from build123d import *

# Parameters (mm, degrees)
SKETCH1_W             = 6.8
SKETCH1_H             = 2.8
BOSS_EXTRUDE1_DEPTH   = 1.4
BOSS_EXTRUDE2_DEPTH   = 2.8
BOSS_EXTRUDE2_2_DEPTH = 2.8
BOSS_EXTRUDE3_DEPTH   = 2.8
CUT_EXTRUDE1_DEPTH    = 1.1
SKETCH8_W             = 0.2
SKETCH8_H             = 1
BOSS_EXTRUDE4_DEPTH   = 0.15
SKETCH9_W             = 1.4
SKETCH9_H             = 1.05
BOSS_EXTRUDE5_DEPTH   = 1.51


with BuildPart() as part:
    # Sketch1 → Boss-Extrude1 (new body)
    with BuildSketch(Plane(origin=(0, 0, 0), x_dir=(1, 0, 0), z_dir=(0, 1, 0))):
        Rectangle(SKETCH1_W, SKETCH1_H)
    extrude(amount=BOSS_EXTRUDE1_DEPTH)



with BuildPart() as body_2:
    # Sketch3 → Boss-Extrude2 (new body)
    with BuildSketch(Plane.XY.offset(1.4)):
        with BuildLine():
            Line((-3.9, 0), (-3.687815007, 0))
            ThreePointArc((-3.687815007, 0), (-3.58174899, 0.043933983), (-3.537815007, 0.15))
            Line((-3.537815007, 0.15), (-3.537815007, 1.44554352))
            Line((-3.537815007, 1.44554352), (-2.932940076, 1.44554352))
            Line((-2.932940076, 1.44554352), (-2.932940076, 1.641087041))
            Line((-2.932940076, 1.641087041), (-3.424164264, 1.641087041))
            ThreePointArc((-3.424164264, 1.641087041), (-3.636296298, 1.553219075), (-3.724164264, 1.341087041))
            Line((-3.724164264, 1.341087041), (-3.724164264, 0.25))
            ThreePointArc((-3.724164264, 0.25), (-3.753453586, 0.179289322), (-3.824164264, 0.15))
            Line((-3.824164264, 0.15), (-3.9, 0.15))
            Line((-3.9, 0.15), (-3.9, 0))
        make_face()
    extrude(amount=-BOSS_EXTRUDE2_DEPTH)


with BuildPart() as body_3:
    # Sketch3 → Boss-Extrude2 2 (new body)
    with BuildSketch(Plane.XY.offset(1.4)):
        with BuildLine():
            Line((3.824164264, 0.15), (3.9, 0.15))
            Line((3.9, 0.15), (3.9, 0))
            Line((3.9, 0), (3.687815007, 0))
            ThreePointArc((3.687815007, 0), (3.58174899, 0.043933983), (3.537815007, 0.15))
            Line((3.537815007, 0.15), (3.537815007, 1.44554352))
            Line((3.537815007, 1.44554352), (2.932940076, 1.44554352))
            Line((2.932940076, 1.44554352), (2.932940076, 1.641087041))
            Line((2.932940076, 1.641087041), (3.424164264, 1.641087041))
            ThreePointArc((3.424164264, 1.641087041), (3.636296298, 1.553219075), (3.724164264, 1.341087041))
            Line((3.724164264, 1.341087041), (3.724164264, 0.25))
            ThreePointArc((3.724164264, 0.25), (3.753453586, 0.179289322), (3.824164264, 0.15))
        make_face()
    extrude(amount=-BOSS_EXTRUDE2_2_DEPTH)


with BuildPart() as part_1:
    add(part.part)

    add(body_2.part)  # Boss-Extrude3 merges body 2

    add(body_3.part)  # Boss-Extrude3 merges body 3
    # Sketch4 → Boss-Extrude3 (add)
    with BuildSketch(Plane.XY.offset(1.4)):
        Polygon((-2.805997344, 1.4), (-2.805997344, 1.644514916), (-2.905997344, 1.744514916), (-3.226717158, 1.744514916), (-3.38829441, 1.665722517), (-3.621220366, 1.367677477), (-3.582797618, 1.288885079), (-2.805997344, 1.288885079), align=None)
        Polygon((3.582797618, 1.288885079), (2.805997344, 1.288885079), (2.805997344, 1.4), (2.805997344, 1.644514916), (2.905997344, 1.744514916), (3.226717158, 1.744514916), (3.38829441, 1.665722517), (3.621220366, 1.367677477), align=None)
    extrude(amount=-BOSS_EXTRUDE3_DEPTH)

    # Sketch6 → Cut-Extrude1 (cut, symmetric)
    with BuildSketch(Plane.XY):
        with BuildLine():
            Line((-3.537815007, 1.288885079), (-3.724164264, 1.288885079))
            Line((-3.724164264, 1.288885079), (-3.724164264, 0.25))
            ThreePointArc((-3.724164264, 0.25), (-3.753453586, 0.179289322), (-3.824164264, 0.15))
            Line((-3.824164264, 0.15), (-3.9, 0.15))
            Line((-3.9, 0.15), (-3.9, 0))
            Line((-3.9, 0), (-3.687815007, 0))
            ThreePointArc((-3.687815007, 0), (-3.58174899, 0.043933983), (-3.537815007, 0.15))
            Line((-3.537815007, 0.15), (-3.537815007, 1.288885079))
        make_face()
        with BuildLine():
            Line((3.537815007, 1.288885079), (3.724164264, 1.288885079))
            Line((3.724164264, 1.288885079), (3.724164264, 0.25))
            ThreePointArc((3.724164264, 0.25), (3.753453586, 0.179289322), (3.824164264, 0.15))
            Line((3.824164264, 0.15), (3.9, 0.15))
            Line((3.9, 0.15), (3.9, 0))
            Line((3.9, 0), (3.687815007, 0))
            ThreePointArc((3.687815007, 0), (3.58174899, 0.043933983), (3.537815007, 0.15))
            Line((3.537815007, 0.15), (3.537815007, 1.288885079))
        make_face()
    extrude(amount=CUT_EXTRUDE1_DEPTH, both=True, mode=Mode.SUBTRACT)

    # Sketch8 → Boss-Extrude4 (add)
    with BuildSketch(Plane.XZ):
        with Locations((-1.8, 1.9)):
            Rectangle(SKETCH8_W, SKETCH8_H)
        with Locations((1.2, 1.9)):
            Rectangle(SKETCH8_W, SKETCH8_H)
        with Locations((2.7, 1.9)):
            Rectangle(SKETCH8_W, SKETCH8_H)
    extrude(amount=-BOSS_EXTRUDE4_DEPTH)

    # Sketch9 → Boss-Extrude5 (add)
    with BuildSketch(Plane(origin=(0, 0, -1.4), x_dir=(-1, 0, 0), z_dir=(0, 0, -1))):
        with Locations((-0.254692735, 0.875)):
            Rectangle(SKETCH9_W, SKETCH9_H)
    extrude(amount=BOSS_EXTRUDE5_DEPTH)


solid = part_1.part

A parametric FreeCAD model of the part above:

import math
import FreeCAD as App
import Part
import Sketcher


def add_polygon(sketch, points):
    """Adds a closed chain of lines whose ends are joined by coincident constraints."""
    first, n = sketch.GeometryCount, len(points)
    for a, b in zip(points, points[1:] + points[:1]):
        sketch.addGeometry(Part.LineSegment(App.Vector(*a, 0), App.Vector(*b, 0)), False)
    for i in range(n):
        sketch.addConstraint(Sketcher.Constraint("Coincident", first + i, 2, first + (i + 1) % n, 1))

doc = App.newDocument("Part")
body = doc.addObject("PartDesign::Body", "Body")

# Sketch on XZ plane
sketch1 = body.newObject("Sketcher::SketchObject", "Sketch")
sketch1.AttachmentSupport = (doc.getObject("XZ_Plane"), [""])
sketch1.MapMode = "FlatFace"
add_polygon(sketch1, [(-3.4, -1.4), (-3.4, 1.4), (3.4, 1.4), (3.4, -1.4)])  # lines 0-3
sketch1.addConstraint([
    Sketcher.Constraint("Vertical", 0),
    Sketcher.Constraint("Horizontal", 1),
    Sketcher.Constraint("Vertical", 2),
    Sketcher.Constraint("Horizontal", 3),
    Sketcher.Constraint("Symmetric", 0, 2, 2, 2, -1, 1),
    Sketcher.Constraint("DistanceX", 1, 1, 1, 2, 6.8),
    Sketcher.Constraint("DistanceY", 0, 1, 0, 2, 2.8),
])
pad1 = body.newObject("PartDesign::Pad", "Pad")
pad1.Profile = sketch1
pad1.Length = 1.4
pad1.Reversed = True
body2 = doc.addObject("PartDesign::Body", "Body001")

# Sketch on XY plane
sketch2 = body2.newObject("Sketcher::SketchObject", "Sketch001")
sketch2.AttachmentSupport = (doc.getObject("XY_Plane001"), [""])
sketch2.MapMode = "FlatFace"
sketch2.AttachmentOffset = App.Placement(App.Vector(0, 0, 1.4), App.Rotation())
sketch2.addGeometry([
    Part.LineSegment(App.Vector(-3.9, 0, 0), App.Vector(-3.69, 0, 0)),  # 0
    Part.ArcOfCircle(Part.Circle(App.Vector(-3.69, 0.15, 0), App.Vector(0, 0, 1), 0.15), math.radians(-90), math.radians(0)),  # 1
    Part.LineSegment(App.Vector(-3.54, 0.15, 0), App.Vector(-3.54, 1.45, 0)),  # 2
    Part.LineSegment(App.Vector(-3.54, 1.45, 0), App.Vector(-2.93, 1.45, 0)),  # 3
    Part.LineSegment(App.Vector(-2.93, 1.45, 0), App.Vector(-2.93, 1.64, 0)),  # 4
    Part.LineSegment(App.Vector(-2.93, 1.64, 0), App.Vector(-3.42, 1.64, 0)),  # 5
    Part.ArcOfCircle(Part.Circle(App.Vector(-3.42, 1.34, 0), App.Vector(0, 0, 1), 0.3), math.radians(90), math.radians(180)),  # 6
    Part.LineSegment(App.Vector(-3.72, 1.34, 0), App.Vector(-3.72, 0.25, 0)),  # 7
    Part.ArcOfCircle(Part.Circle(App.Vector(-3.82, 0.25, 0), App.Vector(0, 0, 1), 0.1), math.radians(-90), math.radians(0)),  # 8
    Part.LineSegment(App.Vector(-3.82, 0.15, 0), App.Vector(-3.9, 0.15, 0)),  # 9
    Part.LineSegment(App.Vector(-3.9, 0.15, 0), App.Vector(-3.9, 0, 0)),  # 10
], False)
sketch2.addConstraint([
    Sketcher.Constraint("Tangent", 0, 2, 1, 1),
    Sketcher.Constraint("Tangent", 1, 2, 2, 1),
    Sketcher.Constraint("Coincident", 2, 2, 3, 1),
    Sketcher.Constraint("Coincident", 3, 2, 4, 1),
    Sketcher.Constraint("Coincident", 4, 2, 5, 1),
    Sketcher.Constraint("Tangent", 5, 2, 6, 1),
    Sketcher.Constraint("Tangent", 6, 2, 7, 1),
    Sketcher.Constraint("Tangent", 7, 2, 8, 2),
    Sketcher.Constraint("Tangent", 8, 1, 9, 1),
    Sketcher.Constraint("Coincident", 9, 2, 10, 1),
    Sketcher.Constraint("Coincident", 10, 2, 0, 1),
    Sketcher.Constraint("Horizontal", 0),
    Sketcher.Constraint("Vertical", 2),
    Sketcher.Constraint("Horizontal", 3),
    Sketcher.Constraint("Vertical", 4),
    Sketcher.Constraint("Horizontal", 5),
    Sketcher.Constraint("Vertical", 7),
    Sketcher.Constraint("Horizontal", 9),
    Sketcher.Constraint("Vertical", 10),
    Sketcher.Constraint("PointOnObject", 0, 2, -1),
    Sketcher.Constraint("Horizontal", 1, 2, 8, 1),
    Sketcher.Constraint("Radius", 6, 0.3),
    Sketcher.Constraint("Radius", 8, 0.1),
    Sketcher.Constraint("Radius", 1, 0.15),
    Sketcher.Constraint("DistanceX", 9, 2, -1, 1, 3.9),
    Sketcher.Constraint("DistanceX", 0, 1, 0, 2, 0.212185),
    Sketcher.Constraint("DistanceX", 3, 1, 3, 2, 0.604875),
    Sketcher.Constraint("DistanceX", 5, 2, 5, 1, 0.491224),
    Sketcher.Constraint("DistanceY", 2, 1, 2, 2, 1.295544),
    Sketcher.Constraint("DistanceY", 4, 1, 4, 2, 0.195544),
])
pad2 = body2.newObject("PartDesign::Pad", "Pad001")
pad2.Profile = sketch2
pad2.Length = 2.8
pad2.Reversed = True
body3 = doc.addObject("PartDesign::Body", "Body002")

# Sketch on XY plane
sketch3 = body3.newObject("Sketcher::SketchObject", "Sketch002")
sketch3.AttachmentSupport = (doc.getObject("XY_Plane002"), [""])
sketch3.MapMode = "FlatFace"
sketch3.AttachmentOffset = App.Placement(App.Vector(0, 0, 1.4), App.Rotation())
sketch3.addGeometry([
    Part.LineSegment(App.Vector(3.9, 0.15, 0), App.Vector(3.82, 0.15, 0)),  # 0
    Part.ArcOfCircle(Part.Circle(App.Vector(3.82, 0.25, 0), App.Vector(0, 0, 1), 0.1), math.radians(180), math.radians(270)),  # 1
    Part.LineSegment(App.Vector(3.72, 0.25, 0), App.Vector(3.72, 1.34, 0)),  # 2
    Part.ArcOfCircle(Part.Circle(App.Vector(3.42, 1.34, 0), App.Vector(0, 0, 1), 0.3), math.radians(0), math.radians(90)),  # 3
    Part.LineSegment(App.Vector(3.42, 1.64, 0), App.Vector(2.93, 1.64, 0)),  # 4
    Part.LineSegment(App.Vector(2.93, 1.64, 0), App.Vector(2.93, 1.45, 0)),  # 5
    Part.LineSegment(App.Vector(2.93, 1.45, 0), App.Vector(3.54, 1.45, 0)),  # 6
    Part.LineSegment(App.Vector(3.54, 1.45, 0), App.Vector(3.54, 0.15, 0)),  # 7
    Part.ArcOfCircle(Part.Circle(App.Vector(3.69, 0.15, 0), App.Vector(0, 0, 1), 0.15), math.radians(-180), math.radians(-90)),  # 8
    Part.LineSegment(App.Vector(3.69, 0, 0), App.Vector(3.9, 0, 0)),  # 9
    Part.LineSegment(App.Vector(3.9, 0, 0), App.Vector(3.9, 0.15, 0)),  # 10
], False)
sketch3.addConstraint([
    Sketcher.Constraint("Tangent", 0, 2, 1, 2),
    Sketcher.Constraint("Tangent", 1, 1, 2, 1),
    Sketcher.Constraint("Tangent", 2, 2, 3, 1),
    Sketcher.Constraint("Tangent", 3, 2, 4, 1),
    Sketcher.Constraint("Coincident", 4, 2, 5, 1),
    Sketcher.Constraint("Coincident", 5, 2, 6, 1),
    Sketcher.Constraint("Coincident", 6, 2, 7, 1),
    Sketcher.Constraint("Tangent", 7, 2, 8, 1),
    Sketcher.Constraint("Tangent", 8, 2, 9, 1),
    Sketcher.Constraint("Coincident", 9, 2, 10, 1),
    Sketcher.Constraint("Coincident", 10, 2, 0, 1),
    Sketcher.Constraint("Horizontal", 0),
    Sketcher.Constraint("Vertical", 2),
    Sketcher.Constraint("Horizontal", 4),
    Sketcher.Constraint("Vertical", 5),
    Sketcher.Constraint("Horizontal", 6),
    Sketcher.Constraint("Vertical", 7),
    Sketcher.Constraint("Horizontal", 9),
    Sketcher.Constraint("Vertical", 10),
    Sketcher.Constraint("PointOnObject", 8, 2, -1),
    Sketcher.Constraint("Horizontal", 8, 3, 0, 2),
    Sketcher.Constraint("Radius", 1, 0.1),
    Sketcher.Constraint("Radius", 3, 0.3),
    Sketcher.Constraint("Radius", 8, 0.15),
    Sketcher.Constraint("DistanceX", -1, 1, 9, 2, 3.9),
    Sketcher.Constraint("DistanceX", 0, 2, 0, 1, 0.075836),
    Sketcher.Constraint("DistanceX", 4, 2, 4, 1, 0.491224),
    Sketcher.Constraint("DistanceX", 6, 1, 6, 2, 0.604875),
    Sketcher.Constraint("DistanceY", 2, 1, 2, 2, 1.091087),
    Sketcher.Constraint("DistanceY", 5, 2, 5, 1, 0.195544),
])
pad3 = body3.newObject("PartDesign::Pad", "Pad002")
pad3.Profile = sketch3
pad3.Length = 2.8
pad3.Reversed = True
body.AllowCompound = True
doc.recompute()

boolean = body.newObject("PartDesign::Boolean", "Boolean")
boolean.Type = "Fuse"
boolean.addObjects([body2])
doc.recompute()

boolean2 = body.newObject("PartDesign::Boolean", "Boolean001")
boolean2.Type = "Fuse"
boolean2.addObjects([body3])

# Sketch on XY plane
sketch4 = body.newObject("Sketcher::SketchObject", "Sketch003")
sketch4.AttachmentSupport = (doc.getObject("XY_Plane"), [""])
sketch4.MapMode = "FlatFace"
sketch4.AttachmentOffset = App.Placement(App.Vector(0, 0, 1.4), App.Rotation())
add_polygon(sketch4, [(-2.81, 1.64), (-2.91, 1.74), (-3.23, 1.74), (-3.39, 1.67), (-3.62, 1.37), (-3.58, 1.29), (-2.81, 1.29)])  # lines 0-6
add_polygon(sketch4, [(2.81, 1.29), (3.58, 1.29), (3.62, 1.37), (3.39, 1.67), (3.23, 1.74), (2.91, 1.74), (2.81, 1.64)])  # lines 7-13
sketch4.addConstraint([
    Sketcher.Constraint("Horizontal", 1),
    Sketcher.Constraint("Horizontal", 5),
    Sketcher.Constraint("Vertical", 6),
    Sketcher.Constraint("Horizontal", 7),
    Sketcher.Constraint("Horizontal", 11),
    Sketcher.Constraint("Vertical", 13),
    Sketcher.Constraint("Symmetric", 4, 2, 7, 2, -2),
    Sketcher.Constraint("Symmetric", 3, 2, 8, 2, -2),
    Sketcher.Constraint("Symmetric", 2, 2, 9, 2, -2),
    Sketcher.Constraint("Symmetric", 1, 2, 10, 2, -2),
    Sketcher.Constraint("Symmetric", 6, 2, 12, 2, -2),
    Sketcher.Constraint("Perpendicular", 2, 4),
    Sketcher.Constraint("Perpendicular", 0, 12),
    Sketcher.Constraint("Equal", 1, 11),
    Sketcher.Constraint("DistanceX", 0, 2, 5, 2, 0.1),
    Sketcher.Constraint("DistanceX", 5, 1, 5, 2, 0.7768),
    Sketcher.Constraint("DistanceX", 1, 2, 1, 1, 0.32072),
    Sketcher.Constraint("DistanceY", 6, 1, 6, 2, 0.35563),
    Sketcher.Constraint("Distance", 4, 0.087662),
    Sketcher.Constraint("DistanceX", 3, 2, -1, 1, 3.62122),
    Sketcher.Constraint("DistanceX", 6, 2, 9, 2, 6.194292),
    Sketcher.Constraint("Distance", 2, 0.179765),
    Sketcher.Constraint("DistanceY", -1, 1, 0, 2, 1.744515),
])
pad4 = body.newObject("PartDesign::Pad", "Pad003")
pad4.Profile = sketch4
pad4.Length = 2.8
pad4.Reversed = True

# Sketch on XY plane
sketch5 = body.newObject("Sketcher::SketchObject", "Sketch004")
sketch5.AttachmentSupport = (doc.getObject("XY_Plane"), [""])
sketch5.MapMode = "FlatFace"
sketch5.addGeometry([
    Part.LineSegment(App.Vector(-3.54, 1.29, 0), App.Vector(-3.72, 1.29, 0)),  # 0
    Part.LineSegment(App.Vector(-3.72, 1.29, 0), App.Vector(-3.72, 0.25, 0)),  # 1
    Part.ArcOfCircle(Part.Circle(App.Vector(-3.82, 0.25, 0), App.Vector(0, 0, 1), 0.1), math.radians(-90), math.radians(0)),  # 2
    Part.LineSegment(App.Vector(-3.82, 0.15, 0), App.Vector(-3.9, 0.15, 0)),  # 3
    Part.LineSegment(App.Vector(-3.9, 0.15, 0), App.Vector(-3.9, 0, 0)),  # 4
    Part.LineSegment(App.Vector(-3.9, 0, 0), App.Vector(-3.69, 0, 0)),  # 5
    Part.ArcOfCircle(Part.Circle(App.Vector(-3.69, 0.15, 0), App.Vector(0, 0, 1), 0.15), math.radians(-90), math.radians(0)),  # 6
    Part.LineSegment(App.Vector(-3.54, 0.15, 0), App.Vector(-3.54, 1.29, 0)),  # 7
    Part.LineSegment(App.Vector(3.72, 1.29, 0), App.Vector(3.54, 1.29, 0)),  # 8
    Part.LineSegment(App.Vector(3.54, 1.29, 0), App.Vector(3.54, 0.15, 0)),  # 9
    Part.ArcOfCircle(Part.Circle(App.Vector(3.69, 0.15, 0), App.Vector(0, 0, 1), 0.15), math.radians(-180), math.radians(-90)),  # 10
    Part.LineSegment(App.Vector(3.69, 0, 0), App.Vector(3.9, 0, 0)),  # 11
    Part.LineSegment(App.Vector(3.9, 0, 0), App.Vector(3.9, 0.15, 0)),  # 12
    Part.LineSegment(App.Vector(3.9, 0.15, 0), App.Vector(3.82, 0.15, 0)),  # 13
    Part.ArcOfCircle(Part.Circle(App.Vector(3.82, 0.25, 0), App.Vector(0, 0, 1), 0.1), math.radians(180), math.radians(270)),  # 14
    Part.LineSegment(App.Vector(3.72, 0.25, 0), App.Vector(3.72, 1.29, 0)),  # 15
], False)
sketch5.addConstraint([
    Sketcher.Constraint("Coincident", 0, 2, 1, 1),
    Sketcher.Constraint("Tangent", 1, 2, 2, 2),
    Sketcher.Constraint("Tangent", 2, 1, 3, 1),
    Sketcher.Constraint("Coincident", 3, 2, 4, 1),
    Sketcher.Constraint("Coincident", 4, 2, 5, 1),
    Sketcher.Constraint("Tangent", 5, 2, 6, 1),
    Sketcher.Constraint("Tangent", 6, 2, 7, 1),
    Sketcher.Constraint("Coincident", 7, 2, 0, 1),
    Sketcher.Constraint("Coincident", 8, 2, 9, 1),
    Sketcher.Constraint("Tangent", 9, 2, 10, 1),
    Sketcher.Constraint("Tangent", 10, 2, 11, 1),
    Sketcher.Constraint("Coincident", 11, 2, 12, 1),
    Sketcher.Constraint("Coincident", 12, 2, 13, 1),
    Sketcher.Constraint("Tangent", 13, 2, 14, 2),
    Sketcher.Constraint("Tangent", 14, 1, 15, 1),
    Sketcher.Constraint("Coincident", 15, 2, 8, 1),
    Sketcher.Constraint("Horizontal", 0),
    Sketcher.Constraint("Vertical", 1),
    Sketcher.Constraint("Horizontal", 3),
    Sketcher.Constraint("Vertical", 4),
    Sketcher.Constraint("Horizontal", 5),
    Sketcher.Constraint("Vertical", 7),
    Sketcher.Constraint("Horizontal", 8),
    Sketcher.Constraint("Vertical", 9),
    Sketcher.Constraint("Horizontal", 11),
    Sketcher.Constraint("Vertical", 12),
    Sketcher.Constraint("Horizontal", 13),
    Sketcher.Constraint("Vertical", 15),
    Sketcher.Constraint("Equal", 6, 10),
    Sketcher.Constraint("Equal", 2, 14),
    Sketcher.Constraint("Symmetric", 5, 2, 10, 2, -1, 1),
    Sketcher.Constraint("Symmetric", 2, 3, 14, 3, -2),
    Sketcher.Constraint("Symmetric", 4, 2, 11, 2, -2),
    Sketcher.Constraint("Horizontal", 10, 3, 2, 1),
    Sketcher.Constraint("Horizontal", 7, 2, 8, 2),
    Sketcher.Constraint("Radius", 2, 0.1),
    Sketcher.Constraint("Radius", 6, 0.15),
    Sketcher.Constraint("DistanceX", 3, 2, -1, 1, 3.9),
    Sketcher.Constraint("DistanceX", 0, 2, 0, 1, 0.186349),
    Sketcher.Constraint("DistanceX", 3, 2, 3, 1, 0.075836),
    Sketcher.Constraint("DistanceY", 1, 2, 1, 1, 1.038885),
])
pocket1 = body.newObject("PartDesign::Pocket", "Pocket")
pocket1.Profile = sketch5
pocket1.Length = 2.2
pocket1.Midplane = True

# Sketch on XZ plane
sketch6 = body.newObject("Sketcher::SketchObject", "Sketch005")
sketch6.AttachmentSupport = (doc.getObject("XZ_Plane"), [""])
sketch6.MapMode = "FlatFace"
add_polygon(sketch6, [(-1.9, 2.4), (-1.9, 1.4), (-1.7, 1.4), (-1.7, 2.4)])  # lines 0-3
add_polygon(sketch6, [(1.1, 2.4), (1.1, 1.4), (1.3, 1.4), (1.3, 2.4)])  # lines 4-7
add_polygon(sketch6, [(2.6, 2.4), (2.6, 1.4), (2.8, 1.4), (2.8, 2.4)])  # lines 8-11
sketch6.addConstraint([
    Sketcher.Constraint("Vertical", 0),
    Sketcher.Constraint("Horizontal", 1),
    Sketcher.Constraint("Vertical", 2),
    Sketcher.Constraint("Horizontal", 3),
    Sketcher.Constraint("Vertical", 4),
    Sketcher.Constraint("Horizontal", 5),
    Sketcher.Constraint("Vertical", 6),
    Sketcher.Constraint("Horizontal", 7),
    Sketcher.Constraint("Vertical", 8),
    Sketcher.Constraint("Horizontal", 9),
    Sketcher.Constraint("Vertical", 10),
    Sketcher.Constraint("Horizontal", 11),
    Sketcher.Constraint("Horizontal", 1, 2, 4, 2),
    Sketcher.Constraint("Horizontal", 3, 2, 6, 2),
    Sketcher.Constraint("Horizontal", 5, 2, 8, 2),
    Sketcher.Constraint("Horizontal", 7, 2, 10, 2),
    Sketcher.Constraint("Equal", 3, 5),
    Sketcher.Constraint("Equal", 7, 9),
    Sketcher.Constraint("DistanceY", 0, 2, 0, 1, 1.0),
    Sketcher.Constraint("DistanceX", 1, 1, 1, 2, 0.2),
    Sketcher.Constraint("DistanceX", 0, 2, 4, 2, 3.0),
    Sketcher.Constraint("DistanceX", 0, 2, -1, 1, 1.9),
    Sketcher.Constraint("DistanceY", -1, 1, 0, 2, 1.4),
    Sketcher.Constraint("DistanceX", -1, 1, 8, 2, 2.6),
])
pad5 = body.newObject("PartDesign::Pad", "Pad004")
pad5.Profile = sketch6
pad5.Length = 0.15
pad5.Reversed = True

# Sketch on XY plane
sketch7 = body.newObject("Sketcher::SketchObject", "Sketch006")
sketch7.AttachmentSupport = (doc.getObject("XY_Plane"), [""])
sketch7.MapMode = "FlatFace"
sketch7.AttachmentOffset = App.Placement(App.Vector(0, 0, -1.4), App.Rotation())
add_polygon(sketch7, [(1, 1.4), (1, 0.3), (-0.4, 0.3), (-0.4, 1.4)])  # lines 0-3
sketch7.addConstraint([
    Sketcher.Constraint("Vertical", 0),
    Sketcher.Constraint("Horizontal", 1),
    Sketcher.Constraint("Vertical", 2),
    Sketcher.Constraint("Horizontal", 3),
    Sketcher.Constraint("DistanceX", 1, 2, 1, 1, 1.4),
    Sketcher.Constraint("DistanceY", 0, 2, 0, 1, 1.05),
    Sketcher.Constraint("DistanceY", -1, 1, 2, 2, 1.4),
    Sketcher.Constraint("DistanceX", -1, 1, 0, 2, 0.954693),
])
pad6 = body.newObject("PartDesign::Pad", "Pad005")
pad6.Profile = sketch7
pad6.Length = 1.51
pad6.Reversed = True

doc.recompute()
